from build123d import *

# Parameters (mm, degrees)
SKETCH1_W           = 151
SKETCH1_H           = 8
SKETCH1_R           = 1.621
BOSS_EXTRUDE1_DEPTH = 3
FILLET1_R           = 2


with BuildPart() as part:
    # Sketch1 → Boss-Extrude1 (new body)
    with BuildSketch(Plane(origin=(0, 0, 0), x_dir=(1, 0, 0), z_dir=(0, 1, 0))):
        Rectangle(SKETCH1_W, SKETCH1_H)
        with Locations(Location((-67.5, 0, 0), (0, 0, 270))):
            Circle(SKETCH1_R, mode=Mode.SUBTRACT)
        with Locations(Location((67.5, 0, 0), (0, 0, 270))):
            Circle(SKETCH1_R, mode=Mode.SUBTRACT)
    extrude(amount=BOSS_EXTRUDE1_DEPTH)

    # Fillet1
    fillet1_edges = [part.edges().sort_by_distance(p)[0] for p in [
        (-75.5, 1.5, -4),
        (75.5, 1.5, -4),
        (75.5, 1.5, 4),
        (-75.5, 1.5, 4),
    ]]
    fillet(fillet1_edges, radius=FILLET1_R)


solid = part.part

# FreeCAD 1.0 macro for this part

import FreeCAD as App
import Part
import Sketcher

V = App.Vector
Q = App.Units.Quantity


def edges_at(feature, points):
    """Names of the edges that pass closest to the given points."""
    edges = feature.Shape.Edges
    near = lambda p: min(range(len(edges)), key=lambda i: edges[i].distToShape(Part.Vertex(*p))[0])
    return sorted({f"Edge{near(p) + 1}" for p in points})


def add_polygon(sketch, points):
    """Adds a closed chain of lines whose ends are joined by coincident constraints."""
    first, n = sketch.GeometryCount, len(points)
    for a, b in zip(points, points[1:] + points[:1]):
        sketch.addGeometry(Part.LineSegment(App.Vector(*a, 0), App.Vector(*b, 0)), False)
    for i in range(n):
        sketch.addConstraint(Sketcher.Constraint("Coincident", first + i, 2, first + (i + 1) % n, 1))

doc = App.newDocument("Part")
body = doc.addObject("PartDesign::Body", "Body")

# Sketch on XZ plane
sketch1 = body.newObject("Sketcher::SketchObject", "Sketch")
sketch1.AttachmentSupport = (doc.getObject("XZ_Plane"), [""])
sketch1.MapMode = "FlatFace"
add_polygon(sketch1, [(-75.5, -4), (-75.5, 4), (75.5, 4), (75.5, -4)])  # lines 0-3
sketch1.addGeometry(Part.Circle(V(-67.5, 0, 0), V(0, 0, 1), 1.6), False)  # 4
sketch1.addGeometry(Part.Circle(V(67.5, 0, 0), V(0, 0, 1), 1.6), False)  # 5
sketch1.addConstraint([
    Sketcher.Constraint("Vertical", 0),
    Sketcher.Constraint("Horizontal", 1),
    Sketcher.Constraint("Vertical", 2),
    Sketcher.Constraint("Horizontal", 3),
    Sketcher.Constraint("Equal", 4, 5),
    Sketcher.Constraint("Symmetric", 4, 3, 5, 3, -1, 1),
    Sketcher.Constraint("Symmetric", 0, 2, 2, 2, -1, 1),
    Sketcher.Constraint("PointOnObject", 4, 3, -1),
    Sketcher.Constraint("DistanceX", 1, 1, 1, 2, Q("151 mm")),
    Sketcher.Constraint("DistanceY", 0, 1, 0, 2, Q("8 mm")),
    Sketcher.Constraint("Diameter", 4, Q("3.242 mm")),
    Sketcher.Constraint("DistanceX", 4, 3, 5, 3, Q("135 mm")),
])
pad1 = body.newObject("PartDesign::Pad", "Pad")
pad1.Profile = sketch1
pad1.Length = 3
pad1.Reversed = True
doc.recompute()

fillet = body.newObject("PartDesign::Fillet", "Fillet")
fillet.Base = (pad1, edges_at(pad1, [
    (-75.5, 1.5, -4),
    (75.5, 1.5, -4),
    (75.5, 1.5, 4),
    (-75.5, 1.5, 4),
]))
fillet.Radius = 2

doc.recompute()
